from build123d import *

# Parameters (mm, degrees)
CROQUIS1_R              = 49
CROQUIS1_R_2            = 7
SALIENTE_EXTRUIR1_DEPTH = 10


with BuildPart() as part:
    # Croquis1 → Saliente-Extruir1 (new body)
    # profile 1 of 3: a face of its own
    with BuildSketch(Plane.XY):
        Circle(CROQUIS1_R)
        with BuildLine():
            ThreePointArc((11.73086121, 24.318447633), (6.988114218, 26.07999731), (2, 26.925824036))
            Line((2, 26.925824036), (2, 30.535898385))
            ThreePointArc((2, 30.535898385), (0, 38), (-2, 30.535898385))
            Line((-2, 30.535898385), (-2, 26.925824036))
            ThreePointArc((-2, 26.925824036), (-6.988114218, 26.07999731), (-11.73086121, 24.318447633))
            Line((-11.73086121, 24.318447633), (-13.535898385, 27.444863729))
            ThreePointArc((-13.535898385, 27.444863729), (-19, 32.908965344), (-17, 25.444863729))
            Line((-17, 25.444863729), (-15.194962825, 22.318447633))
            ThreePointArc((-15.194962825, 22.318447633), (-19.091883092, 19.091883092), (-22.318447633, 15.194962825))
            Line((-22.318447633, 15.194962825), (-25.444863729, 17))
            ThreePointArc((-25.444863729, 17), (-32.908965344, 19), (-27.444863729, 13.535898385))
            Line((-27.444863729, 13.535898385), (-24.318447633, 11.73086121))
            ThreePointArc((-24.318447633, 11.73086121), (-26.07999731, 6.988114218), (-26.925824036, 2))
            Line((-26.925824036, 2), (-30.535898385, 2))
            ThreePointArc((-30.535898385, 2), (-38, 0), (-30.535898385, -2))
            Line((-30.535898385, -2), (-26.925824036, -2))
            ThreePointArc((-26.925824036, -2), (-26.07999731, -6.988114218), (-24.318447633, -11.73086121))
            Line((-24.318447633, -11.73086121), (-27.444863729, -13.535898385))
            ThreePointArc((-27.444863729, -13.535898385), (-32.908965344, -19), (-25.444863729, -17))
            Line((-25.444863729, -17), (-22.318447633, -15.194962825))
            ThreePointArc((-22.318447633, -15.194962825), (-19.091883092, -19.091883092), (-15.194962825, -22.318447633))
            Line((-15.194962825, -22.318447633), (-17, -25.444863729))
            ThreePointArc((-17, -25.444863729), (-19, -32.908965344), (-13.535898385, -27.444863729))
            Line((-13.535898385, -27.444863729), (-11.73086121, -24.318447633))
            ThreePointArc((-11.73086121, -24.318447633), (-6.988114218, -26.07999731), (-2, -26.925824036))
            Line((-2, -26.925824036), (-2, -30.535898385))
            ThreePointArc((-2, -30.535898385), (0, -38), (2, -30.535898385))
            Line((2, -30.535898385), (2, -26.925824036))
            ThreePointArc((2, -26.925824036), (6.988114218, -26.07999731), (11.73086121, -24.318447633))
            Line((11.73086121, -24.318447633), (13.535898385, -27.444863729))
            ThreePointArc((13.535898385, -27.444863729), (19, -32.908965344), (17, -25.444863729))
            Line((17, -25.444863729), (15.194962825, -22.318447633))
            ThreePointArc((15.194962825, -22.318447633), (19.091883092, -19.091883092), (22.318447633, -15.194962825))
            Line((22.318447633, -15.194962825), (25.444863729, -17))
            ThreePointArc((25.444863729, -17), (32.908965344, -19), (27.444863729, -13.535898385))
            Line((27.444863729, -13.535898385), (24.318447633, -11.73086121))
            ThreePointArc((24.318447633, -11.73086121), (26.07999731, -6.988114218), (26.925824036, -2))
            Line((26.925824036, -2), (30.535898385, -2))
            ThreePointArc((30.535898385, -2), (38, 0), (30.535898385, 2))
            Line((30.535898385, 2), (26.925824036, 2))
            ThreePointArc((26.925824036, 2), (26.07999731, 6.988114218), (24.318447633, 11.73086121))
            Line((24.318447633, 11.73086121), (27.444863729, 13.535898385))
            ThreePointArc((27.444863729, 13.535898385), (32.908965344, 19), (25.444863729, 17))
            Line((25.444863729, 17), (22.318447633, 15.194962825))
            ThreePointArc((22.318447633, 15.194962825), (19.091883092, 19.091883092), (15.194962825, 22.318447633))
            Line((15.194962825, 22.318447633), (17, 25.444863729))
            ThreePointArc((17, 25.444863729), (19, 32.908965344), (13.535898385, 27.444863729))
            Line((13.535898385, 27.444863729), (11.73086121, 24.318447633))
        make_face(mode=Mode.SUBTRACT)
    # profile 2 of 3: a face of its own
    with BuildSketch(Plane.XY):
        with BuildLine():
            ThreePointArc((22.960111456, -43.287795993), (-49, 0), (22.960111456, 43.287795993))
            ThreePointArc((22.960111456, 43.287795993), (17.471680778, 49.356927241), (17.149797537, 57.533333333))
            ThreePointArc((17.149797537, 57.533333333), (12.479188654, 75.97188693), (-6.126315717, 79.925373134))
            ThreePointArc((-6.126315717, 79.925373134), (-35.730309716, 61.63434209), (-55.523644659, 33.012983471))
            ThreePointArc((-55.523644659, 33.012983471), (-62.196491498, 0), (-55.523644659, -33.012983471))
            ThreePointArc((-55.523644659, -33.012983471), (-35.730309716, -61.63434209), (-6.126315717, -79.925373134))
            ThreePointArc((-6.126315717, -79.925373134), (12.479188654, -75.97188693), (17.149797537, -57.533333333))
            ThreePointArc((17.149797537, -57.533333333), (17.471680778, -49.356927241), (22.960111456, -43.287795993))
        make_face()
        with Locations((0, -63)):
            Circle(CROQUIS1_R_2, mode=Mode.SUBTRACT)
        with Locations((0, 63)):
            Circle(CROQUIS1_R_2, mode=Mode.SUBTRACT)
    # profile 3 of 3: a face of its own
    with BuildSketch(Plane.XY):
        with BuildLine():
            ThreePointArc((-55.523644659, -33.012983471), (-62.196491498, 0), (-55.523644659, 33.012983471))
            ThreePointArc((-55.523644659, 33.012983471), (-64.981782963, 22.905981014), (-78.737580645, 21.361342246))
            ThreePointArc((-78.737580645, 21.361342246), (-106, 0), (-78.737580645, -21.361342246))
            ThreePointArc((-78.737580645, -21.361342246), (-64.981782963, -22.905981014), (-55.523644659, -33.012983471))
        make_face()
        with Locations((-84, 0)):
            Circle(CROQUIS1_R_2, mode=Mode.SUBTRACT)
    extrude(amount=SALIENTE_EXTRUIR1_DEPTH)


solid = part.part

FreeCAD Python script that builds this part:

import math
import FreeCAD as App
import Part
import Sketcher

V = App.Vector
Q = App.Units.Quantity

doc = App.newDocument("Part")
body = doc.addObject("PartDesign::Body", "Body")

# Sketch on XY plane
sketch1 = body.newObject("Sketcher::SketchObject", "Sketch")
sketch1.AttachmentSupport = (doc.getObject("XY_Plane"), [""])
sketch1.MapMode = "FlatFace"
sketch1.addGeometry([
    Part.ArcOfCircle(Part.Circle(V(28.6, 53.9, 0), V(0, 0, 1), 12), math.radians(162), math.radians(242)),  # 0
    Part.ArcOfCircle(Part.Circle(V(0, 63, 0), V(0, 0, 1), 18), math.radians(-18), math.radians(110)),  # 1
    Part.ArcOfCircle(Part.Circle(V(22.8, 0, 0), V(0, 0, 1), 85), math.radians(110), math.radians(157)),  # 2
    Part.ArcOfCircle(Part.Circle(V(-74, 40.8, 0), V(0, 0, 1), 20), math.radians(-104), math.radians(-23)),  # 3
    Part.ArcOfCircle(Part.Circle(V(-84, 0, 0), V(0, 0, 1), 22), math.radians(76), math.radians(284)),  # 4
    Part.ArcOfCircle(Part.Circle(V(-74, -40.8, 0), V(0, 0, 1), 20), math.radians(23), math.radians(104)),  # 5
    Part.ArcOfCircle(Part.Circle(V(22.8, 0, 0), V(0, 0, 1), 85), math.radians(-157), math.radians(-110)),  # 6
    Part.ArcOfCircle(Part.Circle(V(0, -63, 0), V(0, 0, 1), 18), math.radians(-110), math.radians(18)),  # 7
    Part.ArcOfCircle(Part.Circle(V(28.6, -53.9, 0), V(0, 0, 1), 12), math.radians(118), math.radians(198)),  # 8
    Part.ArcOfCircle(Part.Circle(V(0, 0, 0), V(0, 0, 1), 49), math.radians(-62), math.radians(62)),  # 9
    Part.ArcOfCircle(Part.Circle(V(0, 0, 0), V(0, 0, 1), 27), math.radians(64), math.radians(86)),  # 10
    Part.LineSegment(V(11.7, 24.3, 0), V(13.5, 27.4, 0)),  # 11
    Part.ArcOfCircle(Part.Circle(V(17, 29.4, 0), V(0, 0, 1), 4), math.radians(-90), math.radians(210)),  # 12
    Part.LineSegment(V(17, 25.4, 0), V(15.2, 22.3, 0)),  # 13
    Part.ArcOfCircle(Part.Circle(V(0, 0, 0), V(0, 0, 1), 27), math.radians(34), math.radians(56)),  # 14
    Part.LineSegment(V(22.3, 15.2, 0), V(25.4, 17, 0)),  # 15
    Part.ArcOfCircle(Part.Circle(V(29.4, 17, 0), V(0, 0, 1), 4), math.radians(-120), math.radians(180)),  # 16
    Part.LineSegment(V(27.4, 13.5, 0), V(24.3, 11.7, 0)),  # 17
    Part.ArcOfCircle(Part.Circle(V(0, 0, 0), V(0, 0, 1), 27), math.radians(4), math.radians(26)),  # 18
    Part.LineSegment(V(26.9, 2, 0), V(30.5, 2, 0)),  # 19
    Part.ArcOfCircle(Part.Circle(V(34, 0, 0), V(0, 0, 1), 4), math.radians(-150), math.radians(150)),  # 20
    Part.LineSegment(V(30.5, -2, 0), V(26.9, -2, 0)),  # 21
    Part.ArcOfCircle(Part.Circle(V(0, 0, 0), V(0, 0, 1), 27), math.radians(-26), math.radians(-4)),  # 22
    Part.LineSegment(V(24.3, -11.7, 0), V(27.4, -13.5, 0)),  # 23
    Part.ArcOfCircle(Part.Circle(V(29.4, -17, 0), V(0, 0, 1), 4), math.radians(180), math.radians(480)),  # 24
    Part.LineSegment(V(25.4, -17, 0), V(22.3, -15.2, 0)),  # 25
    Part.ArcOfCircle(Part.Circle(V(0, 0, 0), V(0, 0, 1), 27), math.radians(-56), math.radians(-34)),  # 26
    Part.LineSegment(V(15.2, -22.3, 0), V(17, -25.4, 0)),  # 27
    Part.ArcOfCircle(Part.Circle(V(17, -29.4, 0), V(0, 0, 1), 4), math.radians(150), math.radians(450)),  # 28
    Part.LineSegment(V(13.5, -27.4, 0), V(11.7, -24.3, 0)),  # 29
    Part.ArcOfCircle(Part.Circle(V(0, 0, 0), V(0, 0, 1), 27), math.radians(-86), math.radians(-64)),  # 30
    Part.LineSegment(V(2, -26.9, 0), V(2, -30.5, 0)),  # 31
    Part.ArcOfCircle(Part.Circle(V(0, -34, 0), V(0, 0, 1), 4), math.radians(120), math.radians(420)),  # 32
    Part.LineSegment(V(-2, -30.5, 0), V(-2, -26.9, 0)),  # 33
    Part.ArcOfCircle(Part.Circle(V(0, 0, 0), V(0, 0, 1), 27), math.radians(-116), math.radians(-94)),  # 34
    Part.LineSegment(V(-11.7, -24.3, 0), V(-13.5, -27.4, 0)),  # 35
    Part.ArcOfCircle(Part.Circle(V(-17, -29.4, 0), V(0, 0, 1), 4), math.radians(90), math.radians(390)),  # 36
    Part.LineSegment(V(-17, -25.4, 0), V(-15.2, -22.3, 0)),  # 37
    Part.ArcOfCircle(Part.Circle(V(0, 0, 0), V(0, 0, 1), 27), math.radians(-146), math.radians(-124)),  # 38
    Part.LineSegment(V(-22.3, -15.2, 0), V(-25.4, -17, 0)),  # 39
    Part.ArcOfCircle(Part.Circle(V(-29.4, -17, 0), V(0, 0, 1), 4), math.radians(60), math.radians(360)),  # 40
    Part.LineSegment(V(-27.4, -13.5, 0), V(-24.3, -11.7, 0)),  # 41
    Part.ArcOfCircle(Part.Circle(V(0, 0, 0), V(0, 0, 1), 27), math.radians(-176), math.radians(-154)),  # 42
    Part.LineSegment(V(-26.9, -2, 0), V(-30.5, -2, 0)),  # 43
    Part.ArcOfCircle(Part.Circle(V(-34, 0, 0), V(0, 0, 1), 4), math.radians(30), math.radians(330)),  # 44
    Part.LineSegment(V(-30.5, 2, 0), V(-26.9, 2, 0)),  # 45
    Part.ArcOfCircle(Part.Circle(V(0, 0, 0), V(0, 0, 1), 27), math.radians(154), math.radians(176)),  # 46
    Part.LineSegment(V(-24.3, 11.7, 0), V(-27.4, 13.5, 0)),  # 47
    Part.ArcOfCircle(Part.Circle(V(-29.4, 17, 0), V(0, 0, 1), 4), math.radians(0), math.radians(300)),  # 48
    Part.LineSegment(V(-25.4, 17, 0), V(-22.3, 15.2, 0)),  # 49
    Part.ArcOfCircle(Part.Circle(V(0, 0, 0), V(0, 0, 1), 27), math.radians(124), math.radians(146)),  # 50
    Part.LineSegment(V(-15.2, 22.3, 0), V(-17, 25.4, 0)),  # 51
    Part.ArcOfCircle(Part.Circle(V(-17, 29.4, 0), V(0, 0, 1), 4), math.radians(-30), math.radians(270)),  # 52
    Part.LineSegment(V(-13.5, 27.4, 0), V(-11.7, 24.3, 0)),  # 53
    Part.ArcOfCircle(Part.Circle(V(0, 0, 0), V(0, 0, 1), 27), math.radians(94), math.radians(116)),  # 54
    Part.LineSegment(V(-2, 26.9, 0), V(-2, 30.5, 0)),  # 55
    Part.ArcOfCircle(Part.Circle(V(0, 34, 0), V(0, 0, 1), 4), math.radians(-60), math.radians(240)),  # 56
    Part.LineSegment(V(2, 30.5, 0), V(2, 26.9, 0)),  # 57
    Part.Circle(V(0, 63, 0), V(0, 0, 1), 7),  # 58
    Part.Circle(V(0, -63, 0), V(0, 0, 1), 7),  # 59
    Part.Circle(V(-84, 0, 0), V(0, 0, 1), 7),  # 60
], False)
sketch1.addConstraint([
    Sketcher.Constraint("Tangent", 0, 1, 1, 1),
    Sketcher.Constraint("Tangent", 1, 2, 2, 1),
    Sketcher.Constraint("Tangent", 2, 2, 3, 2),
    Sketcher.Constraint("Tangent", 3, 1, 4, 1),
    Sketcher.Constraint("Tangent", 4, 2, 5, 2),
    Sketcher.Constraint("Tangent", 5, 1, 6, 1),
    Sketcher.Constraint("Tangent", 6, 2, 7, 1),
    Sketcher.Constraint("Tangent", 7, 2, 8, 2),
    Sketcher.Constraint("Tangent", 8, 1, 9, 1),
    Sketcher.Constraint("Tangent", 9, 2, 0, 2),
    Sketcher.Constraint("Coincident", 10, 1, 11, 1),
    Sketcher.Constraint("Coincident", 11, 2, 12, 2),
    Sketcher.Constraint("Coincident", 12, 1, 13, 1),
    Sketcher.Constraint("Coincident", 13, 2, 14, 2),
    Sketcher.Constraint("Coincident", 14, 1, 15, 1),
    Sketcher.Constraint("Coincident", 15, 2, 16, 2),
    Sketcher.Constraint("Coincident", 16, 1, 17, 1),
    Sketcher.Constraint("Coincident", 17, 2, 18, 2),
    Sketcher.Constraint("Coincident", 18, 1, 19, 1),
    Sketcher.Constraint("Coincident", 19, 2, 20, 2),
    Sketcher.Constraint("Coincident", 20, 1, 21, 1),
    Sketcher.Constraint("Coincident", 21, 2, 22, 2),
    Sketcher.Constraint("Coincident", 22, 1, 23, 1),
    Sketcher.Constraint("Coincident", 23, 2, 24, 2),
    Sketcher.Constraint("Coincident", 24, 1, 25, 1),
    Sketcher.Constraint("Coincident", 25, 2, 26, 2),
    Sketcher.Constraint("Coincident", 26, 1, 27, 1),
    Sketcher.Constraint("Coincident", 27, 2, 28, 2),
    Sketcher.Constraint("Coincident", 28, 1, 29, 1),
    Sketcher.Constraint("Coincident", 29, 2, 30, 2),
    Sketcher.Constraint("Coincident", 30, 1, 31, 1),
    Sketcher.Constraint("Coincident", 31, 2, 32, 2),
    Sketcher.Constraint("Coincident", 32, 1, 33, 1),
    Sketcher.Constraint("Coincident", 33, 2, 34, 2),
    Sketcher.Constraint("Coincident", 34, 1, 35, 1),
    Sketcher.Constraint("Coincident", 35, 2, 36, 2),
    Sketcher.Constraint("Coincident", 36, 1, 37, 1),
    Sketcher.Constraint("Coincident", 37, 2, 38, 2),
    Sketcher.Constraint("Coincident", 38, 1, 39, 1),
    Sketcher.Constraint("Coincident", 39, 2, 40, 2),
    Sketcher.Constraint("Coincident", 40, 1, 41, 1),
    Sketcher.Constraint("Coincident", 41, 2, 42, 2),
    Sketcher.Constraint("Coincident", 42, 1, 43, 1),
    Sketcher.Constraint("Coincident", 43, 2, 44, 2),
    Sketcher.Constraint("Coincident", 44, 1, 45, 1),
    Sketcher.Constraint("Coincident", 45, 2, 46, 2),
    Sketcher.Constraint("Coincident", 46, 1, 47, 1),
    Sketcher.Constraint("Coincident", 47, 2, 48, 2),
    Sketcher.Constraint("Coincident", 48, 1, 49, 1),
    Sketcher.Constraint("Coincident", 49, 2, 50, 2),
    Sketcher.Constraint("Coincident", 50, 1, 51, 1),
    Sketcher.Constraint("Coincident", 51, 2, 52, 2),
    Sketcher.Constraint("Coincident", 52, 1, 53, 1),
    Sketcher.Constraint("Coincident", 53, 2, 54, 2),
    Sketcher.Constraint("Coincident", 54, 1, 55, 1),
    Sketcher.Constraint("Coincident", 55, 2, 56, 2),
    Sketcher.Constraint("Coincident", 56, 1, 57, 1),
    Sketcher.Constraint("Coincident", 57, 2, 10, 2),
    Sketcher.Constraint("Horizontal", 19),
    Sketcher.Constraint("Horizontal", 21),
    Sketcher.Constraint("Vertical", 31),
    Sketcher.Constraint("Vertical", 33),
    Sketcher.Constraint("Horizontal", 43),
    Sketcher.Constraint("Horizontal", 45),
    Sketcher.Constraint("Vertical", 55),
    Sketcher.Constraint("Vertical", 57),
    Sketcher.Constraint("Coincident", 9, 3, -1, 1),
    Sketcher.Constraint("Coincident", 10, 3, -1, 1),
    Sketcher.Constraint("Coincident", 14, 3, -1, 1),
    Sketcher.Constraint("Coincident", 18, 3, -1, 1),
    Sketcher.Constraint("Coincident", 22, 3, -1, 1),
    Sketcher.Constraint("Coincident", 26, 3, -1, 1),
    Sketcher.Constraint("Coincident", 30, 3, -1, 1),
    Sketcher.Constraint("Coincident", 34, 3, -1, 1),
    Sketcher.Constraint("Coincident", 38, 3, -1, 1),
    Sketcher.Constraint("Coincident", 42, 3, -1, 1),
    Sketcher.Constraint("Coincident", 46, 3, -1, 1),
    Sketcher.Constraint("Coincident", 50, 3, -1, 1),
    Sketcher.Constraint("Coincident", 54, 3, -1, 1),
    Sketcher.Constraint("Coincident", 6, 3, 2, 3),
    Sketcher.Constraint("Coincident", 58, 3, 1, 3),
    Sketcher.Constraint("Coincident", 59, 3, 7, 3),
    Sketcher.Constraint("Coincident", 60, 3, 4, 3),
    Sketcher.Constraint("Equal", 3, 5),
    Sketcher.Constraint("Equal", 2, 6),
    Sketcher.Constraint("Equal", 1, 7),
    Sketcher.Constraint("Equal", 0, 8),
    Sketcher.Constraint("Equal", 10, 14),
    Sketcher.Constraint("Equal", 12, 16),
    Sketcher.Constraint("Equal", 14, 18),
    Sketcher.Constraint("Equal", 16, 20),
    Sketcher.Constraint("Equal", 18, 22),
    Sketcher.Constraint("Equal", 20, 24),
    Sketcher.Constraint("Equal", 22, 26),
    Sketcher.Constraint("Equal", 24, 28),
    Sketcher.Constraint("Equal", 26, 30),
    Sketcher.Constraint("Equal", 28, 32),
    Sketcher.Constraint("Equal", 30, 34),
    Sketcher.Constraint("Equal", 32, 36),
    Sketcher.Constraint("Equal", 34, 38),
    Sketcher.Constraint("Equal", 36, 40),
    Sketcher.Constraint("Equal", 38, 42),
    Sketcher.Constraint("Equal", 40, 44),
    Sketcher.Constraint("Equal", 42, 46),
    Sketcher.Constraint("Equal", 44, 48),
    Sketcher.Constraint("Equal", 46, 50),
    Sketcher.Constraint("Equal", 48, 52),
    Sketcher.Constraint("Equal", 50, 54),
    Sketcher.Constraint("Equal", 52, 56),
    Sketcher.Constraint("Equal", 58, 59),
    Sketcher.Constraint("Equal", 59, 60),
    Sketcher.Constraint("Symmetric", 1, 3, 7, 3, -1, 1),
    Sketcher.Constraint("Symmetric", 12, 3, 36, 3, -1, 1),
    Sketcher.Constraint("Symmetric", 16, 3, 40, 3, -1, 1),
    Sketcher.Constraint("Symmetric", 20, 3, 44, 3, -1, 1),
    Sketcher.Constraint("Symmetric", 24, 3, 48, 3, -1, 1),
    Sketcher.Constraint("Symmetric", 28, 3, 52, 3, -1, 1),
    Sketcher.Constraint("Symmetric", 32, 3, 56, 3, -1, 1),
    Sketcher.Constraint("Symmetric", 28, 3, 36, 3, -2),
    Sketcher.Constraint("Symmetric", 24, 3, 40, 3, -2),
    Sketcher.Constraint("Symmetric", 31, 2, 32, 1, -2),
    Sketcher.Constraint("Symmetric", 20, 1, 43, 2, -2),
    Sketcher.Constraint("Symmetric", 3, 3, 5, 3, -1),
    Sketcher.Constraint("Parallel", 11, 13),
    Sketcher.Constraint("Parallel", 15, 17),
    Sketcher.Constraint("Perpendicular", 13, 23),
    Sketcher.Constraint("Parallel", 23, 25),
    Sketcher.Constraint("Perpendicular", 17, 27),
    Sketcher.Constraint("Parallel", 27, 29),
    Sketcher.Constraint("Perpendicular", 25, 35),
    Sketcher.Constraint("Parallel", 35, 37),
    Sketcher.Constraint("Perpendicular", 29, 39),
    Sketcher.Constraint("Parallel", 39, 41),
    Sketcher.Constraint("Perpendicular", 37, 47),
    Sketcher.Constraint("Parallel", 47, 49),
    Sketcher.Constraint("Perpendicular", 41, 51),
    Sketcher.Constraint("Parallel", 51, 53),
    Sketcher.Constraint("Horizontal", 48, 3, 15, 2),
    Sketcher.Constraint("Horizontal", 40, 3, 24, 1),
    Sketcher.Constraint("Horizontal", 29, 2, 34, 1),
    Sketcher.Constraint("Horizontal", 28, 1, 35, 2),
    Sketcher.Constraint("Horizontal", 26, 1, 37, 2),
    Sketcher.Constraint("Horizontal", 25, 2, 38, 1),
    Sketcher.Constraint("Horizontal", 23, 2, 40, 1),
    Sketcher.Constraint("Horizontal", 19, 2, 44, 1),
    Sketcher.Constraint("Horizontal", 17, 2, 46, 1),
    Sketcher.Constraint("Horizontal", 15, 2, 48, 1),
    Sketcher.Constraint("Horizontal", 13, 2, 50, 1),
    Sketcher.Constraint("Horizontal", 11, 2, 52, 1),
    Sketcher.Constraint("Horizontal", 55, 2, 56, 1),
    Sketcher.Constraint("Vertical", 28, 3, 12, 1),
    Sketcher.Constraint("Vertical", 19, 2, 20, 1),
    Sketcher.Constraint("Vertical", 17, 2, 22, 1),
    Sketcher.Constraint("Vertical", 13, 2, 26, 1),
    Sketcher.Constraint("Vertical", 11, 2, 28, 1),
    Sketcher.Constraint("Vertical", 33, 2, 54, 1),
    Sketcher.Constraint("Equal", 45, 31),
    Sketcher.Constraint("Equal", 11, 13),
    Sketcher.Constraint("Equal", 13, 15),
    Sketcher.Constraint("Equal", 15, 17),
    Sketcher.Constraint("Diameter", 58, Q("14 mm")),
    Sketcher.Constraint("Radius", 0, Q("12 mm")),
    Sketcher.Constraint("Radius", 1, Q("18 mm")),
    Sketcher.Constraint("Radius", 2, Q("85 mm")),
    Sketcher.Constraint("Radius", 3, Q("20 mm")),
    Sketcher.Constraint("Radius", 4, Q("22 mm")),
    Sketcher.Constraint("Radius", 9, Q("49 mm")),
    Sketcher.Constraint("Radius", 10, Q("27 mm")),
    Sketcher.Constraint("Radius", 12, Q("4 mm")),
    Sketcher.Constraint("Angle", 11, Q("60 deg")),
    Sketcher.Constraint("DistanceY", -1, 1, 1, 3, Q("63 mm")),
    Sketcher.Constraint("DistanceX", 4, 3, -1, 1, Q("84 mm")),
    Sketcher.Constraint("DistanceX", -1, 1, 12, 3, Q("17 mm")),
    Sketcher.Constraint("DistanceY", -1, 1, 16, 3, Q("17 mm")),
    Sketcher.Constraint("DistanceX", -1, 1, 20, 3, Q("34 mm")),
    Sketcher.Constraint("DistanceY", 32, 3, -1, 1, Q("34 mm")),
    Sketcher.Constraint("DistanceY", -1, 1, 18, 1, Q("2 mm")),
    Sketcher.Constraint("DistanceX", -1, 1, 11, 2, Q("13.535898 mm")),
])
pad1 = body.newObject("PartDesign::Pad", "Pad")
pad1.Profile = sketch1
pad1.Length = 10

doc.recompute()
